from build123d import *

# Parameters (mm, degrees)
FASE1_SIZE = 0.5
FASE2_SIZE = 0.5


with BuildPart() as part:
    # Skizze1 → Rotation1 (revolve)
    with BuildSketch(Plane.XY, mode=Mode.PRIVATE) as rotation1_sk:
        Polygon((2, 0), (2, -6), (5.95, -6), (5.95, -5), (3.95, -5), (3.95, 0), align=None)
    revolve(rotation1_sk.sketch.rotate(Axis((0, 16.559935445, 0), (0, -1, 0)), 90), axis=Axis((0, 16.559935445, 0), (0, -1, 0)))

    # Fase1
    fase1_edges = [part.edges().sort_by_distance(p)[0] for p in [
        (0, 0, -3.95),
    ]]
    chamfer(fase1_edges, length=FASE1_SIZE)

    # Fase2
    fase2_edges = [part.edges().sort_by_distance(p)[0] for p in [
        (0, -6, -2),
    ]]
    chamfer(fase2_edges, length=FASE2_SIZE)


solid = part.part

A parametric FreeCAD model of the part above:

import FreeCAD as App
import Part
import Sketcher

V = App.Vector
Q = App.Units.Quantity


def edges_at(feature, points):
    """Names of the edges that pass closest to the given points."""
    edges = feature.Shape.Edges
    near = lambda p: min(range(len(edges)), key=lambda i: edges[i].distToShape(Part.Vertex(*p))[0])
    return sorted({f"Edge{near(p) + 1}" for p in points})


def add_polygon(sketch, points):
    """Adds a closed chain of lines whose ends are joined by coincident constraints."""
    first, n = sketch.GeometryCount, len(points)
    for a, b in zip(points, points[1:] + points[:1]):
        sketch.addGeometry(Part.LineSegment(App.Vector(*a, 0), App.Vector(*b, 0)), False)
    for i in range(n):
        sketch.addConstraint(Sketcher.Constraint("Coincident", first + i, 2, first + (i + 1) % n, 1))

doc = App.newDocument("Part")
body = doc.addObject("PartDesign::Body", "Body")

sketch1 = body.newObject("Sketcher::SketchObject", "Sketch")
sketch1.AttachmentSupport = (doc.getObject("XY_Plane"), [""])
sketch1.MapMode = "FlatFace"
add_polygon(sketch1, [(2, 0), (2, -6), (5.95, -6), (5.95, -5), (3.95, -5), (3.95, 0)])
sketch1.addConstraint(Sketcher.Constraint("Vertical", 0))
sketch1.addConstraint(Sketcher.Constraint("Horizontal", 1))
sketch1.addConstraint(Sketcher.Constraint("Vertical", 2))
sketch1.addConstraint(Sketcher.Constraint("Horizontal", 3))
sketch1.addConstraint(Sketcher.Constraint("Vertical", 4))
sketch1.addConstraint(Sketcher.Constraint("Horizontal", 5))
sketch1.addConstraint(Sketcher.Constraint("PointOnObject", 4, 2, -1))
sketch1.addConstraint(Sketcher.Constraint("DistanceX", 3, 2, 3, 1, Q("2 mm")))
sketch1.addConstraint(Sketcher.Constraint("DistanceY", 0, 2, 0, 1, Q("6 mm")))
sketch1.addConstraint(Sketcher.Constraint("DistanceY", 2, 1, 2, 2, Q("1 mm")))
sketch1.addConstraint(Sketcher.Constraint("DistanceX", -1, 1, 0, 2, Q("2 mm")))
sketch1.addConstraint(Sketcher.Constraint("DistanceX", 1, 1, 1, 2, Q("3.95 mm")))
revolution = body.newObject("PartDesign::Revolution", "Revolution")
revolution.Profile = sketch1
revolution.ReferenceAxis = (sketch1, ["V_Axis"])
revolution.Angle = 360
doc.recompute()

chamfer = body.newObject("PartDesign::Chamfer", "Chamfer")
chamfer.Base = (revolution, edges_at(revolution, [(0, 0, -3.95)]))
chamfer.Size = 0.5
doc.recompute()

chamfer2 = body.newObject("PartDesign::Chamfer", "Chamfer001")
chamfer2.Base = (chamfer, edges_at(chamfer, [(0, -6, -2)]))
chamfer2.Size = 0.5

doc.recompute()
